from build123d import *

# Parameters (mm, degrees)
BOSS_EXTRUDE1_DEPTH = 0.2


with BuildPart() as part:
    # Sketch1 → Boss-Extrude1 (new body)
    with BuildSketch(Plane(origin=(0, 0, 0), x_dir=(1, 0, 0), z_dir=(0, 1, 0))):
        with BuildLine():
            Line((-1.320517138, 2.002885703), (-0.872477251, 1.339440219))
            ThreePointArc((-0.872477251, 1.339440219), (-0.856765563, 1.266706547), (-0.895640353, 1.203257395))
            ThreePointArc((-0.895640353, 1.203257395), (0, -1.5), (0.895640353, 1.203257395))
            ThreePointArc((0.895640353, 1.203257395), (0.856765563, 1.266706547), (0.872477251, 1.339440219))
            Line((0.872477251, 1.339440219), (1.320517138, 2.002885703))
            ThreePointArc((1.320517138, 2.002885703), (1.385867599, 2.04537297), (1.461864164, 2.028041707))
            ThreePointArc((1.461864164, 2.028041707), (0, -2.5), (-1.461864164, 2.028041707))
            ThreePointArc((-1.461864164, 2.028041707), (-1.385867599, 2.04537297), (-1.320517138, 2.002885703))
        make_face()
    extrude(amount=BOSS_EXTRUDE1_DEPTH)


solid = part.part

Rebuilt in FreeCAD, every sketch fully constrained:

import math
import FreeCAD as App
import Part
import Sketcher
from FreeCAD import Vector
Q = App.Units.Quantity

doc = App.newDocument("Part")
params = doc.addObject("Spreadsheet::Sheet", "Params")
for row, (alias, value) in enumerate([
    ("sketch1_radius", "0.1 mm"),
    ("sketch1_radius2", "2.5 mm"),
    ("sketch1_radius3", "1.5 mm"),
    ("pad1_length", "0.2 mm"),
], start=1):
    params.set(f"A{row}", alias)
    params.set(f"B{row}", "=" + value)
    params.setAlias(f"B{row}", alias)

body = doc.addObject("PartDesign::Body", "Body")

sketch1 = body.newObject("Sketcher::SketchObject", "Sketch")
sketch1.AttachmentSupport = (doc.getObject("XZ_Plane"), [""])
sketch1.MapMode = "FlatFace"
sketch1.addGeometry([
    Part.LineSegment(Vector(-0.87, -1.34, 0), Vector(-1.32, -2, 0)),
    Part.ArcOfCircle(Part.Circle(Vector(-1.4, -1.95, 0), Vector(0, 0, 1), 0.1), math.radians(-126), math.radians(-34)),
    Part.ArcOfCircle(Part.Circle(Vector(0, 0, 0), Vector(0, 0, 1), 2.5), math.radians(-54), math.radians(234)),
    Part.ArcOfCircle(Part.Circle(Vector(1.4, -1.95, 0), Vector(0, 0, 1), 0.1), math.radians(-146), math.radians(-54)),
    Part.LineSegment(Vector(1.32, -2, 0), Vector(0.87, -1.34, 0)),
    Part.ArcOfCircle(Part.Circle(Vector(0.96, -1.28, 0), Vector(0, 0, 1), 0.1), math.radians(127), math.radians(214)),
    Part.ArcOfCircle(Part.Circle(Vector(0, 0, 0), Vector(0, 0, 1), 1.5), math.radians(-53), math.radians(233)),
    Part.ArcOfCircle(Part.Circle(Vector(-0.96, -1.28, 0), Vector(0, 0, 1), 0.1), math.radians(-34), math.radians(53)),
], False)
sketch1.addConstraint([
    Sketcher.Constraint("Tangent", 0, 2, 1, 2),
    Sketcher.Constraint("Tangent", 1, 1, 2, 2),
    Sketcher.Constraint("Tangent", 2, 1, 3, 2),
    Sketcher.Constraint("Tangent", 3, 1, 4, 1),
    Sketcher.Constraint("Tangent", 4, 2, 5, 2),
    Sketcher.Constraint("Tangent", 5, 1, 6, 1),
    Sketcher.Constraint("Tangent", 6, 2, 7, 2),
    Sketcher.Constraint("Tangent", 7, 1, 0, 1),
    Sketcher.Constraint("Coincident", 2, 3, -1, 1),
    Sketcher.Constraint("Coincident", 6, 3, -1, 1),
    Sketcher.Constraint("Equal", 1, 3),
    Sketcher.Constraint("Equal", 3, 5),
    Sketcher.Constraint("Equal", 5, 7),
    Sketcher.Constraint("Symmetric", 0, 2, 3, 1, -2),
    Sketcher.Constraint("Radius", 1, Q("0.1 mm")),
    Sketcher.Constraint("Radius", 2, Q("2.5 mm")),
    Sketcher.Constraint("Radius", 6, Q("1.5 mm")),
    Sketcher.Constraint("DistanceX", 7, 3, 5, 3, Q("1.910699 mm")),
    Sketcher.Constraint("DistanceY", 2, 1, 4, 2, Q("0.688601 mm")),
])
sketch1.setExpression("Constraints[14]", "Params.sketch1_radius")
sketch1.setExpression("Constraints[15]", "Params.sketch1_radius2")
sketch1.setExpression("Constraints[16]", "Params.sketch1_radius3")
pad1 = body.newObject("PartDesign::Pad", "Pad")
pad1.Profile = sketch1
pad1.setExpression("Length", "Params.pad1_length")
pad1.Reversed = True

doc.recompute()
